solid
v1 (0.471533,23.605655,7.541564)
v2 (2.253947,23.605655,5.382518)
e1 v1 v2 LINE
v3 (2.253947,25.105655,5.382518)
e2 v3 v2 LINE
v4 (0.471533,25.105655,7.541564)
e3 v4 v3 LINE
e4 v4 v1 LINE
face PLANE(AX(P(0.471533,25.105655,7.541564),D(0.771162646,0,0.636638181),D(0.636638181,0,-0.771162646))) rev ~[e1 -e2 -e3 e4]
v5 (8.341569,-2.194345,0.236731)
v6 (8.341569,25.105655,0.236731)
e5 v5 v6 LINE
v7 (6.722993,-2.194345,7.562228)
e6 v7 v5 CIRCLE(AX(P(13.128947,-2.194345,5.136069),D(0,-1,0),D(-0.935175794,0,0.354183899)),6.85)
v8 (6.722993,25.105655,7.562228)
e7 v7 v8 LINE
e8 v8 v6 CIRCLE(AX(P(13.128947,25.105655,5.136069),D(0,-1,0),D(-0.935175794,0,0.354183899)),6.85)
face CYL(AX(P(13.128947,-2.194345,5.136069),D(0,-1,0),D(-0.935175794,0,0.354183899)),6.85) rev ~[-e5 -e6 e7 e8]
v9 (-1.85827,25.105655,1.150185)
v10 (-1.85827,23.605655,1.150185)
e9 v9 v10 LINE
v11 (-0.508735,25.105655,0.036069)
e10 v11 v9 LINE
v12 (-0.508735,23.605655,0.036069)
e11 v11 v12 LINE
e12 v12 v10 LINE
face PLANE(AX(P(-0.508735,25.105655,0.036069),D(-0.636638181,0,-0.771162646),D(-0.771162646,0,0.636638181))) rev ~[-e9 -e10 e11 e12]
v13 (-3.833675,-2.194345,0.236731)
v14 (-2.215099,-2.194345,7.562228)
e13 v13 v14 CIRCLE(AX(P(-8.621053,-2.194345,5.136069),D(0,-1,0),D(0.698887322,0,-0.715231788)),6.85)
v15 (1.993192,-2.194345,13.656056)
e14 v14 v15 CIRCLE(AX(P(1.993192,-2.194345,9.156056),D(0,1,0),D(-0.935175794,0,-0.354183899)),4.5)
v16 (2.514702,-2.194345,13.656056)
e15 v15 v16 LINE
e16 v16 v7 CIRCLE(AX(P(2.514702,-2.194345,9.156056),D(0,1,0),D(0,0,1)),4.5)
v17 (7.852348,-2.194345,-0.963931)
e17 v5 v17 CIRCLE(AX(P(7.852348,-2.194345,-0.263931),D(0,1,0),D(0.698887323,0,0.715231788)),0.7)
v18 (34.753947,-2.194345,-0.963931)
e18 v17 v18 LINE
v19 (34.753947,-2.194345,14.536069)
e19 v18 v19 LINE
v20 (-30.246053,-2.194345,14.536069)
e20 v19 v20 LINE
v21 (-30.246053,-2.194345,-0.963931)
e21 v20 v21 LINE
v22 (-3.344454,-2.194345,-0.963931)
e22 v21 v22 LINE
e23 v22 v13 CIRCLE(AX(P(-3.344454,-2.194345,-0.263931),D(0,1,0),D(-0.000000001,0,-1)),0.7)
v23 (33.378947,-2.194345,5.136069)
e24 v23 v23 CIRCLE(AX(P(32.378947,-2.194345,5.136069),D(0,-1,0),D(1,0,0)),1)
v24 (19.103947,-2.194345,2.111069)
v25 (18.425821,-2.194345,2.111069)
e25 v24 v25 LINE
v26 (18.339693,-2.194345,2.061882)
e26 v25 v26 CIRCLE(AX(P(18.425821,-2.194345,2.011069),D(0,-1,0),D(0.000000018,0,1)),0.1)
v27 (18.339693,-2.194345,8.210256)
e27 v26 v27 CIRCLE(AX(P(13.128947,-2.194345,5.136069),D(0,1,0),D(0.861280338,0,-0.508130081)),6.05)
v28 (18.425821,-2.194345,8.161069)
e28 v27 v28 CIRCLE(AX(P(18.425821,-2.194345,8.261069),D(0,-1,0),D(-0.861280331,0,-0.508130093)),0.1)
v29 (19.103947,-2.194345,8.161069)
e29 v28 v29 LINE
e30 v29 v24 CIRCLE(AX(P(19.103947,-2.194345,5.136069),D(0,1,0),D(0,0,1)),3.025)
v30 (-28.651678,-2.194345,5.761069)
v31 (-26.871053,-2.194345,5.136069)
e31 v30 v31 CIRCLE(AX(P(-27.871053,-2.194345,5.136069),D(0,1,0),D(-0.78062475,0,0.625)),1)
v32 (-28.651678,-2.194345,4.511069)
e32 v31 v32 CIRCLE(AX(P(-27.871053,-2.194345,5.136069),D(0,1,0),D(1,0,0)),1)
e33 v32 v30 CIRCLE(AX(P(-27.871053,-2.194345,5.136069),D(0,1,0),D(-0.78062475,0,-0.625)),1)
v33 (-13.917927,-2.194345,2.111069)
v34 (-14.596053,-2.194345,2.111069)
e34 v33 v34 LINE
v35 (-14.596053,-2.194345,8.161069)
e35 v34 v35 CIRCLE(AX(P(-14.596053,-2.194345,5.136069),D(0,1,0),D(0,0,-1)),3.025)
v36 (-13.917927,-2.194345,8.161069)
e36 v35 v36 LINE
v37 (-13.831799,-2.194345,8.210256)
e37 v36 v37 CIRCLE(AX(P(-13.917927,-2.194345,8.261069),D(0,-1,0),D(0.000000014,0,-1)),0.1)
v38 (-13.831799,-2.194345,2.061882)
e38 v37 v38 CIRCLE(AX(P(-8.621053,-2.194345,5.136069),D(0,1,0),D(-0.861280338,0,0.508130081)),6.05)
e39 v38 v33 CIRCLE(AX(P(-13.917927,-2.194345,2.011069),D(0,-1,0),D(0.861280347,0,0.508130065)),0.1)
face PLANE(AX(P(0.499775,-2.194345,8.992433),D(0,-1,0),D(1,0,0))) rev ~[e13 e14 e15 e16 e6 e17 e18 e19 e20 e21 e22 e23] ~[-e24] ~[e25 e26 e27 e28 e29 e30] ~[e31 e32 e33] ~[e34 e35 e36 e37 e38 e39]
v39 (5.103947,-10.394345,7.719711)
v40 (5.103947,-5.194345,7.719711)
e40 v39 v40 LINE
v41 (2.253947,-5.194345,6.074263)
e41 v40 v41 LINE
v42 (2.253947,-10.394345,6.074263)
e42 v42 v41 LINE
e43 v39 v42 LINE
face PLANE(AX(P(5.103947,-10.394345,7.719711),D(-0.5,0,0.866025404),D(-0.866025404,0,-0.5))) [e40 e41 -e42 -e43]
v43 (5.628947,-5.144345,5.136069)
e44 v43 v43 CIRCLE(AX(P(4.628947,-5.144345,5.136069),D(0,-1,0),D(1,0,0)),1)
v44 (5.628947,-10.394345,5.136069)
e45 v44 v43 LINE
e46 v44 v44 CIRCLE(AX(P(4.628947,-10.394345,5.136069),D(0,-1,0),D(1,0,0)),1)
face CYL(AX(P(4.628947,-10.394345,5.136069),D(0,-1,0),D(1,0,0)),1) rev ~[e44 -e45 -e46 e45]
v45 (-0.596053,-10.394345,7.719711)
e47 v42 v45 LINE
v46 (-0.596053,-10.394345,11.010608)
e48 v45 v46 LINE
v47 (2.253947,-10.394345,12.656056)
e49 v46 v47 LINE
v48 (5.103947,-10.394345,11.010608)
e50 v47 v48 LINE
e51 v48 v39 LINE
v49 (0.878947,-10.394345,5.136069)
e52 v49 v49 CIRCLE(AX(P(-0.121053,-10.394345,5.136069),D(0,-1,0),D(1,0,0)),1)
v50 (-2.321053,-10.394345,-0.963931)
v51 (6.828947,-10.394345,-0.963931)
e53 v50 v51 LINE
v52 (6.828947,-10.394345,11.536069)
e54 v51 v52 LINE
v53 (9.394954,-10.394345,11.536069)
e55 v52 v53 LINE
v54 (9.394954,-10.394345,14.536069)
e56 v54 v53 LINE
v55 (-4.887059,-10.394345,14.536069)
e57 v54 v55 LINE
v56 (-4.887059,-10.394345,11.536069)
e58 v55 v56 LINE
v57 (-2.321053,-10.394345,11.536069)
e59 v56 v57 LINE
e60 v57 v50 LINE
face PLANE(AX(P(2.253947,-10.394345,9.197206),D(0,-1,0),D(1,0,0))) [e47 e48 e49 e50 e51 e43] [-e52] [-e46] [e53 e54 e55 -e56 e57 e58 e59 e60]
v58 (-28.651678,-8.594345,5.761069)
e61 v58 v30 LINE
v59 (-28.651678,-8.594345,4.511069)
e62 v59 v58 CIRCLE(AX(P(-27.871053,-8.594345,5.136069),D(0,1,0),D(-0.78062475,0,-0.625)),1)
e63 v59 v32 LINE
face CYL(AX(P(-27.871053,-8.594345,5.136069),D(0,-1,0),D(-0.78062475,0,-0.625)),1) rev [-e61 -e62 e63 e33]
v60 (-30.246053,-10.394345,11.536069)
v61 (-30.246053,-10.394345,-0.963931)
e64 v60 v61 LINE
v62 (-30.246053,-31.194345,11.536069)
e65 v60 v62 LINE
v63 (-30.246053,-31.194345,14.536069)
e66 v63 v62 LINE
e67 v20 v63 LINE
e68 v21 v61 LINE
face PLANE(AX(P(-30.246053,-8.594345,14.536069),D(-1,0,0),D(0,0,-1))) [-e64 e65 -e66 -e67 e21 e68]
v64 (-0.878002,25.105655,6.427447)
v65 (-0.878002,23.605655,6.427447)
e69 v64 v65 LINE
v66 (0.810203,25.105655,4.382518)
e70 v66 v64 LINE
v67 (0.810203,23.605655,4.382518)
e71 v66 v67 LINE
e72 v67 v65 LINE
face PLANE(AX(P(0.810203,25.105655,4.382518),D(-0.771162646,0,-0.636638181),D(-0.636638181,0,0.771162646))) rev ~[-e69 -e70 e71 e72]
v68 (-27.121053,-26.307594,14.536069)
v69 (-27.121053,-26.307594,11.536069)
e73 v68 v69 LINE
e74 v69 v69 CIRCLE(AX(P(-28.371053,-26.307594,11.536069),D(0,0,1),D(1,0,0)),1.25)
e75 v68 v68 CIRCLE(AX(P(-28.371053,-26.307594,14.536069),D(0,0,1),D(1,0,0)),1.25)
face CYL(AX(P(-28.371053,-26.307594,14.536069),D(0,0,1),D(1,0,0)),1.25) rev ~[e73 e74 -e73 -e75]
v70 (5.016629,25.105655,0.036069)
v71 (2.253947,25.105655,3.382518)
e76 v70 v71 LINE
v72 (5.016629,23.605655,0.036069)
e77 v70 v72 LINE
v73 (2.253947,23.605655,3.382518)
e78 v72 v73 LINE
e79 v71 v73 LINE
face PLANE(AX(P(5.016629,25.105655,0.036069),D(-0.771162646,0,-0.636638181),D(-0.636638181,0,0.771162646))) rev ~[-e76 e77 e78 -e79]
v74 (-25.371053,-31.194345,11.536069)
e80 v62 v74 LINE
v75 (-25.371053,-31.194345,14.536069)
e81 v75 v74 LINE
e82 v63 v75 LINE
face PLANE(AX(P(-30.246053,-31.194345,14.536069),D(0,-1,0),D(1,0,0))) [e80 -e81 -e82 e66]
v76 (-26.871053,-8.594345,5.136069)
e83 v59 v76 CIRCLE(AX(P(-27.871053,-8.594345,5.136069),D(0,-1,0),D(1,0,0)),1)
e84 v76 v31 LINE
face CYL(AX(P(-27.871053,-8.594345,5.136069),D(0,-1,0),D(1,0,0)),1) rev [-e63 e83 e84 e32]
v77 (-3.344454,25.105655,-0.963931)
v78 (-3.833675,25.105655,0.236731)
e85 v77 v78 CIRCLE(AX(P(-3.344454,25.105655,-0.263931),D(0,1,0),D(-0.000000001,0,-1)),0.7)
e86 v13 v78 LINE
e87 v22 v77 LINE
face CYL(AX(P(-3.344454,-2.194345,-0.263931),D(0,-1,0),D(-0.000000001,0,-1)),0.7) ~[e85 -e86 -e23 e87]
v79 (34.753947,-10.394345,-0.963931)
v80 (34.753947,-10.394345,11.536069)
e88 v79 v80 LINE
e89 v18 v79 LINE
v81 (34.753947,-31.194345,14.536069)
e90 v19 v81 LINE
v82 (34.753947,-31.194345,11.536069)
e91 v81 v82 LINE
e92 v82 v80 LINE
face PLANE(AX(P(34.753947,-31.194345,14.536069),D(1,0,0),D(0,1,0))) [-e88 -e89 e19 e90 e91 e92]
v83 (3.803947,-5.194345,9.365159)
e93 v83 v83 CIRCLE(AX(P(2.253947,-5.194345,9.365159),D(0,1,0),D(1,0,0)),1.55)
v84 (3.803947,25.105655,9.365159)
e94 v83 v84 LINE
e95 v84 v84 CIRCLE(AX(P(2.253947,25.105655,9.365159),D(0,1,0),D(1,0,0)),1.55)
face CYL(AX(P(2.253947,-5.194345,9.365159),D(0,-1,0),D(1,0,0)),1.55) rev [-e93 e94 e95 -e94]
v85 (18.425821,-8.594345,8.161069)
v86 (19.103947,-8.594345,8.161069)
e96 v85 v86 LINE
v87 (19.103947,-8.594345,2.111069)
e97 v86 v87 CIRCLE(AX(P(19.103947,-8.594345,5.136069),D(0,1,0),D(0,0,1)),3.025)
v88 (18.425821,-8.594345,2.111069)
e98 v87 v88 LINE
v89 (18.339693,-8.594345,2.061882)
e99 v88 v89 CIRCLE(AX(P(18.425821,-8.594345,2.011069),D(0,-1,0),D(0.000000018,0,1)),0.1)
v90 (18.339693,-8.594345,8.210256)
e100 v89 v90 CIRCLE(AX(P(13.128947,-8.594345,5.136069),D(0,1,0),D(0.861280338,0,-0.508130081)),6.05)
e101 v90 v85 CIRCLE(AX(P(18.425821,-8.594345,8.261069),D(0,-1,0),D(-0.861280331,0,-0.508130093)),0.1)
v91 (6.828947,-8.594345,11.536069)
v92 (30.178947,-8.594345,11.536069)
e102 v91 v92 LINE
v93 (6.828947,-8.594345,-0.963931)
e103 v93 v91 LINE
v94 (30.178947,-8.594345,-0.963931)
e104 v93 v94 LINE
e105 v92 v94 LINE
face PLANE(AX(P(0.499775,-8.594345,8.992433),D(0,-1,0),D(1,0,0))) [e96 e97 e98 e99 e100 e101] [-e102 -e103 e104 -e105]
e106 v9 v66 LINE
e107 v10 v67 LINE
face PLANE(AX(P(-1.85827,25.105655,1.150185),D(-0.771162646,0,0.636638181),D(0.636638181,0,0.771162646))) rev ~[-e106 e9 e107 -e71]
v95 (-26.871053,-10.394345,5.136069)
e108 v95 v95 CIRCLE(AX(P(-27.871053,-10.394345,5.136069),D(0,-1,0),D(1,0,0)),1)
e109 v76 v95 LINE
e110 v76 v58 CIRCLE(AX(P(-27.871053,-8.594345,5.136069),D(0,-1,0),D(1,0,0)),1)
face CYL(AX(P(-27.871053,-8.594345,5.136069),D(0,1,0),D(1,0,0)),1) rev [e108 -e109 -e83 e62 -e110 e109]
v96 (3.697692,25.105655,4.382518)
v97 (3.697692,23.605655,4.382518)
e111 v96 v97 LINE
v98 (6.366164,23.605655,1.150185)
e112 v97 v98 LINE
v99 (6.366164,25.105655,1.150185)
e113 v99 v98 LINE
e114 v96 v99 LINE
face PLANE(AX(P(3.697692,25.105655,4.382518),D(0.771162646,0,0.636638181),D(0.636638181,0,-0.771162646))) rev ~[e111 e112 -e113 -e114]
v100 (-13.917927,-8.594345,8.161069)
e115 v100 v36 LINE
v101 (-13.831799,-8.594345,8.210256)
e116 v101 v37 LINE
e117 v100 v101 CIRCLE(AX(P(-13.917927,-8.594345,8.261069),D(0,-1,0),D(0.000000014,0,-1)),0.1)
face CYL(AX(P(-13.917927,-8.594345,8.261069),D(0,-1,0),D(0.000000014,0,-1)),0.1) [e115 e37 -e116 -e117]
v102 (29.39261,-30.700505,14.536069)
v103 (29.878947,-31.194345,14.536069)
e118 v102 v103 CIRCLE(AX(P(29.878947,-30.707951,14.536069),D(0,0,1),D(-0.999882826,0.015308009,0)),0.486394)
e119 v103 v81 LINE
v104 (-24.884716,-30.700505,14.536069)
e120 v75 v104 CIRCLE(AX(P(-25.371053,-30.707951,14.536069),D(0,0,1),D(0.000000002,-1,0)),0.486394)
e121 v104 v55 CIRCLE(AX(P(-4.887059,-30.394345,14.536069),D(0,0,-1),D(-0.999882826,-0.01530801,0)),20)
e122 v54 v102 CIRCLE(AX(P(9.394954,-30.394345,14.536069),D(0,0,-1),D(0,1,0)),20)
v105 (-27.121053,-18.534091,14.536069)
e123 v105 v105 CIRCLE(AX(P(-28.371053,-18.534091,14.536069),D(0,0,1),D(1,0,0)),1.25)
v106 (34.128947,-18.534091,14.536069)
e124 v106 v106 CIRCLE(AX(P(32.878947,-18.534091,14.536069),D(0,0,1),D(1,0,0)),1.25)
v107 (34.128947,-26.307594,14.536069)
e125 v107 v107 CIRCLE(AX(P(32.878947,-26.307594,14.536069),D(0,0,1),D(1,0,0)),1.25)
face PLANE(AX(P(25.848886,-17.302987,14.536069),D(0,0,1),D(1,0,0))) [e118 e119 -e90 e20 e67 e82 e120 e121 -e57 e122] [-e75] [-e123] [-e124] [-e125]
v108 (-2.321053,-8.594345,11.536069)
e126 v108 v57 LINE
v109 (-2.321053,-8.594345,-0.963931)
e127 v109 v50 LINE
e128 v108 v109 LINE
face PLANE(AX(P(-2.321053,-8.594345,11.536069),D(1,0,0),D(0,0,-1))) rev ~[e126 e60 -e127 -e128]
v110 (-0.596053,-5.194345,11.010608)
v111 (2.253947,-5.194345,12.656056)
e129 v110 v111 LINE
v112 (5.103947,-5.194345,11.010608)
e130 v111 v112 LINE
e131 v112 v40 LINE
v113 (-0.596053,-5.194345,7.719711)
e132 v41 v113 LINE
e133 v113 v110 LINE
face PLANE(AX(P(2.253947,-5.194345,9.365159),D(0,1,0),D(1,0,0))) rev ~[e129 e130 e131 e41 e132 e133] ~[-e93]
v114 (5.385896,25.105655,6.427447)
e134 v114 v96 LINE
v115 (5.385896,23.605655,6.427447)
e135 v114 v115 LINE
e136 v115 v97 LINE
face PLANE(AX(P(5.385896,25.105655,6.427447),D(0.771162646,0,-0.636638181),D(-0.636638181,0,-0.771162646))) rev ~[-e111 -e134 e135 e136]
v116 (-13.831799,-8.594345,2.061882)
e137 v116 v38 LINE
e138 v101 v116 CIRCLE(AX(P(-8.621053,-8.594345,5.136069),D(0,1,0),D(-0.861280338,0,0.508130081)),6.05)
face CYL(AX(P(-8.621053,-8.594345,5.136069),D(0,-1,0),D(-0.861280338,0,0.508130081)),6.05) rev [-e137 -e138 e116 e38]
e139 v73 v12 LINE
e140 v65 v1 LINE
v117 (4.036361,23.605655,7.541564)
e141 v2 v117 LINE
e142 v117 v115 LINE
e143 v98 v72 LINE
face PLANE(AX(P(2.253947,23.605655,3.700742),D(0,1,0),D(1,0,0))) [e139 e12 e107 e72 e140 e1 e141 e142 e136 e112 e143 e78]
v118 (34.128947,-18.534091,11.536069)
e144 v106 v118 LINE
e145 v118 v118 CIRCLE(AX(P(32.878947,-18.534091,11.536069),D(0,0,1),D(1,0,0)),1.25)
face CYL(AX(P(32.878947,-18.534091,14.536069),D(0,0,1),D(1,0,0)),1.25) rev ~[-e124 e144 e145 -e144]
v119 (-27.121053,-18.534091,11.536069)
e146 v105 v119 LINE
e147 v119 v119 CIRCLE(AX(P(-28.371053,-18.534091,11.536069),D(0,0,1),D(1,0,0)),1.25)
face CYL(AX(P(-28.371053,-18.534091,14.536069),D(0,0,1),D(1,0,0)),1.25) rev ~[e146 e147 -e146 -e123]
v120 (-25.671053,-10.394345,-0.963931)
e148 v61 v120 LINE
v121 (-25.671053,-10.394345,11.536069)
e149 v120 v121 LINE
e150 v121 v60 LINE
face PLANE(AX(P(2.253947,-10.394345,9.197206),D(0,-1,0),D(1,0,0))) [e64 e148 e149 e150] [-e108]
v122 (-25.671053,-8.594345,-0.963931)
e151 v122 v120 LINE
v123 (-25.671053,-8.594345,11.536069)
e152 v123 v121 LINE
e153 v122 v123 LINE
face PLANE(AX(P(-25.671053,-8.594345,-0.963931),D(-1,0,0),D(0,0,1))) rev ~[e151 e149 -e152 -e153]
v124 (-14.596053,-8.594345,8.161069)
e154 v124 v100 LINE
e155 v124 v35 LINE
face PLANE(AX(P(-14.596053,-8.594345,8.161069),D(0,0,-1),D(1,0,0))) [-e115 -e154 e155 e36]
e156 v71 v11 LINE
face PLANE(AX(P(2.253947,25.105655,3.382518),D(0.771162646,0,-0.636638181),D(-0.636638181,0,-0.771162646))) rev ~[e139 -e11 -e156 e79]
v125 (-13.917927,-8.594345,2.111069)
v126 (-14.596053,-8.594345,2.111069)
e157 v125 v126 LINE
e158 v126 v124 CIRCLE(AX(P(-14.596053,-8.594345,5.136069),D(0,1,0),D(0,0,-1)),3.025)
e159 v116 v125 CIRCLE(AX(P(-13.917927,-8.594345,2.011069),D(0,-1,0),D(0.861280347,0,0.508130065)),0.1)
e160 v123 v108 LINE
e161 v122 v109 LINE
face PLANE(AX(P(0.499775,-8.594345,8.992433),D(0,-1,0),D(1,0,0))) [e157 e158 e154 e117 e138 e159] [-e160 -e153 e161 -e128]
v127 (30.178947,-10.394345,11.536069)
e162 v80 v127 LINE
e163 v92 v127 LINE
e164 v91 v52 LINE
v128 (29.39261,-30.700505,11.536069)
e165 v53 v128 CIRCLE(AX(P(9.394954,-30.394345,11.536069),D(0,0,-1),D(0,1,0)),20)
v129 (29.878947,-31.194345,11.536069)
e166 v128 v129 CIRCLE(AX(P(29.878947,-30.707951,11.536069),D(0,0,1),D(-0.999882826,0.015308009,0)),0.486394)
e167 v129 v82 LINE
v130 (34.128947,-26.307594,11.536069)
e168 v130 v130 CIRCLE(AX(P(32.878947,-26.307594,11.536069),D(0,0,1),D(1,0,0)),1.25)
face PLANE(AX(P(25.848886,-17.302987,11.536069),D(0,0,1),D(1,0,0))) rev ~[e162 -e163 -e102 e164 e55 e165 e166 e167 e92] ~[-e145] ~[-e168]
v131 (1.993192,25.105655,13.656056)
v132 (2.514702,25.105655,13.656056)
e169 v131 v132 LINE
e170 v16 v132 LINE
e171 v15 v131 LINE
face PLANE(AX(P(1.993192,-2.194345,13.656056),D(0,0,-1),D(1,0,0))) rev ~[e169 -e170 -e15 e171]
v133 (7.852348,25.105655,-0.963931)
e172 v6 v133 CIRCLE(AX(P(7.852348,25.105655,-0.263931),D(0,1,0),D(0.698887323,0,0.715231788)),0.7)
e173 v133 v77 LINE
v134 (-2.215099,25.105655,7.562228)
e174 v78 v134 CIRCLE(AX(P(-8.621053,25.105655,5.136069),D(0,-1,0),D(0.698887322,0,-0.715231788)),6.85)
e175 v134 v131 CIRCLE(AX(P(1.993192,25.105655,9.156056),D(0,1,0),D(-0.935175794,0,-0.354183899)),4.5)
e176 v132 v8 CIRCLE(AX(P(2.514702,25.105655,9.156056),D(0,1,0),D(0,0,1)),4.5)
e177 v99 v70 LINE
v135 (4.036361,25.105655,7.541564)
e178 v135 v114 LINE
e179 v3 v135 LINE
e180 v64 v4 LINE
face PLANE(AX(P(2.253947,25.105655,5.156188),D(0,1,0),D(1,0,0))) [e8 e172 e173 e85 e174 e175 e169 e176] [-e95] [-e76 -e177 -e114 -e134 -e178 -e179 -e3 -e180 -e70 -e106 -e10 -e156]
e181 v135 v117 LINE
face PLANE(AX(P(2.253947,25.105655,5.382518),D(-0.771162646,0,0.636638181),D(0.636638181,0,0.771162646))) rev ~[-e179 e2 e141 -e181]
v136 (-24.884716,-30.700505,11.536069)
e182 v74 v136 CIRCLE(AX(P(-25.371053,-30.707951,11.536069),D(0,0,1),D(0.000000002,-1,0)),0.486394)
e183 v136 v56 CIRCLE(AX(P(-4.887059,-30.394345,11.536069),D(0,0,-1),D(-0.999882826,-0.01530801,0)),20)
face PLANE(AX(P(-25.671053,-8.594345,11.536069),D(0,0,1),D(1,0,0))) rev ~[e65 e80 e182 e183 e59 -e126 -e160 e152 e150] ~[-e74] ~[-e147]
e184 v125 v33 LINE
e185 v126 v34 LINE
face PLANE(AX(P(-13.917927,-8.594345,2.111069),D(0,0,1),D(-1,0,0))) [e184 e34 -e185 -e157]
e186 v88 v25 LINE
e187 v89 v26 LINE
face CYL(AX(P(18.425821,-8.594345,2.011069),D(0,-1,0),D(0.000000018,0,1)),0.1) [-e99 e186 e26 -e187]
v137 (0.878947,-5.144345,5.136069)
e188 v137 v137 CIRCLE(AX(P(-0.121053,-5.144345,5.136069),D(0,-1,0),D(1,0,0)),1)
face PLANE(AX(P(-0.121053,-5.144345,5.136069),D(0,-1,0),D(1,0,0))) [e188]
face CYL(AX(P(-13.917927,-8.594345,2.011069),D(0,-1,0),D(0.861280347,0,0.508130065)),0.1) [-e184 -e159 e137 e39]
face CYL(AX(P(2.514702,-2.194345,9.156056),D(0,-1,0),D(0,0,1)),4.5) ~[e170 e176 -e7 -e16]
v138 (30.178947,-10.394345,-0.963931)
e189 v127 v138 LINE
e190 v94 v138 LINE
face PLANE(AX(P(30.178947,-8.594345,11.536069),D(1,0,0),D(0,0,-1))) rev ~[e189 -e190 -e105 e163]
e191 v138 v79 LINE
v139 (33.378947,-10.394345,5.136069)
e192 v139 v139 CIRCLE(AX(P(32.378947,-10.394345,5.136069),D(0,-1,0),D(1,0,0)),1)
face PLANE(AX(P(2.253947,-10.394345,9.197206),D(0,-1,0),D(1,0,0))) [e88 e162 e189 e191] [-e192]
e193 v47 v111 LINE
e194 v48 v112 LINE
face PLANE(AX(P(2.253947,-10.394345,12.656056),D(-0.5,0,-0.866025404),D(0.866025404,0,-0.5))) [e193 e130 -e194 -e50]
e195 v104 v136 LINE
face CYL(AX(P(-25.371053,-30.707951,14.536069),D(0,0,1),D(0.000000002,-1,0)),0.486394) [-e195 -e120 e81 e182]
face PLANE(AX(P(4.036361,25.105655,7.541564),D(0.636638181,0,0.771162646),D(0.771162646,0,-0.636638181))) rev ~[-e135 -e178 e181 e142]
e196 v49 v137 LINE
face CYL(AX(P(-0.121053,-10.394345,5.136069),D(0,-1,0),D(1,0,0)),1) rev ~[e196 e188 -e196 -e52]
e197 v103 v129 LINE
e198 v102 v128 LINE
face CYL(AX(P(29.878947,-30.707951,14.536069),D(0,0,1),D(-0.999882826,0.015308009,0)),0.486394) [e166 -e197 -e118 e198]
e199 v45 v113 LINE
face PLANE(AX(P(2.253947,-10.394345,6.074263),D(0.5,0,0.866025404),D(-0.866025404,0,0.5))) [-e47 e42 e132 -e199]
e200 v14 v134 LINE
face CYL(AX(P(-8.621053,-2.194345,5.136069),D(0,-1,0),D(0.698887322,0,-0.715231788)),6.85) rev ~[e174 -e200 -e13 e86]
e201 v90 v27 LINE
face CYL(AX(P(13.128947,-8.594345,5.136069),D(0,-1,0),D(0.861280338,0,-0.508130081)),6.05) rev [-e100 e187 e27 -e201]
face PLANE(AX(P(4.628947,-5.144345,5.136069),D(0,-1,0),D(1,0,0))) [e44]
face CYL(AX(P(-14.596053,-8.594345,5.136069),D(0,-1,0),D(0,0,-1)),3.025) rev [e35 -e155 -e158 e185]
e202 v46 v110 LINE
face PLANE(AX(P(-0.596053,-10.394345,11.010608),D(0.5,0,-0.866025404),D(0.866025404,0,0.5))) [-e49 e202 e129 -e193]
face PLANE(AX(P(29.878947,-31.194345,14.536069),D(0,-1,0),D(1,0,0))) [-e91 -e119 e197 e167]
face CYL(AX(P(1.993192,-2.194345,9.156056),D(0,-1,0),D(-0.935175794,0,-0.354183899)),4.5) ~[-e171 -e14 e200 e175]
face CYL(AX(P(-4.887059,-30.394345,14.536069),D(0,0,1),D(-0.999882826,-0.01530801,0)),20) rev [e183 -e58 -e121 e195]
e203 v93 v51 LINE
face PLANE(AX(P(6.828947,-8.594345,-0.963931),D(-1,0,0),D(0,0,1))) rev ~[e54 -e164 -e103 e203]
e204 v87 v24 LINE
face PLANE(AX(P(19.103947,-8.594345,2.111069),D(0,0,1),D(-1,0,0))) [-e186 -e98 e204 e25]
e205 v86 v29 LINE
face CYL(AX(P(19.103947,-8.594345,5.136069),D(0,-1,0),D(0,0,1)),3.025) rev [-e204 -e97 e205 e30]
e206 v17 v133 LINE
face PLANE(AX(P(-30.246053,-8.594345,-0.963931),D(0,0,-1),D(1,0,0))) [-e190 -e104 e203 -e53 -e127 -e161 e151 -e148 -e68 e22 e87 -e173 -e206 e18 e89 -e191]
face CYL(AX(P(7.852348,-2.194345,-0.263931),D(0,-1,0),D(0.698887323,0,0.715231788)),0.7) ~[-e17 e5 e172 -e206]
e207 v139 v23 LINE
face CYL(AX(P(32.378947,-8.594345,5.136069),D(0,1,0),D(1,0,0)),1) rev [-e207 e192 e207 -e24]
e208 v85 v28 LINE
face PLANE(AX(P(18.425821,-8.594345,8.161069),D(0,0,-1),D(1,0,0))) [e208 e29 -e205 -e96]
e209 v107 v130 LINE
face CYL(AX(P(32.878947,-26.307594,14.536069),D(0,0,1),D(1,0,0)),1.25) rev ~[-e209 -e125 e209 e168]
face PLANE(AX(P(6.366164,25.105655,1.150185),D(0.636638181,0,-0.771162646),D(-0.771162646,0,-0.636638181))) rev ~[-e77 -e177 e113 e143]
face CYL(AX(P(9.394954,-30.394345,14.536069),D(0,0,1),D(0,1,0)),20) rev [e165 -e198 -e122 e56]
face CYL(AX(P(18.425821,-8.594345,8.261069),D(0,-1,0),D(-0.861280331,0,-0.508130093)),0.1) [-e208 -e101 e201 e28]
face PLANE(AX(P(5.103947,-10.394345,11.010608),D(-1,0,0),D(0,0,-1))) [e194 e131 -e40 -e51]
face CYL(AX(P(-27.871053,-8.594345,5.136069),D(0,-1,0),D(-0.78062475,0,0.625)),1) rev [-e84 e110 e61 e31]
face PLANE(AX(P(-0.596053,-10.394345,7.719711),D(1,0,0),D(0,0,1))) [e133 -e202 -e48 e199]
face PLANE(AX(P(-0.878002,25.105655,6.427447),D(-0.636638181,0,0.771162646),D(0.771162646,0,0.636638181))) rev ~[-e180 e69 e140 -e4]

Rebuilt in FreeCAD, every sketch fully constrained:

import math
import FreeCAD as App
import Part
import Sketcher
from FreeCAD import Vector
Q = App.Units.Quantity

doc = App.newDocument("Part")
body = doc.addObject("PartDesign::Body", "Body")

sketch1 = body.newObject("Sketcher::SketchObject", "Sketch")
sketch1.AttachmentSupport = (doc.getObject("XZ_Plane"), [""])
sketch1.MapMode = "FlatFace"
sketch1.AttachmentOffset = App.Placement(Vector(0, 0, 8.594345), App.Rotation())
sketch1.addGeometry([
    Part.LineSegment(Vector(-30.2, 14.5, 0), Vector(-30.2, -1, 0)),
    Part.LineSegment(Vector(-30.2, -1, 0), Vector(-25.7, -1, 0)),
    Part.LineSegment(Vector(-25.7, -1, 0), Vector(-25.7, 11.5, 0)),
    Part.LineSegment(Vector(-25.7, 11.5, 0), Vector(-2.3, 11.5, 0)),
    Part.LineSegment(Vector(-2.3, 11.5, 0), Vector(-2.3, -1, 0)),
    Part.LineSegment(Vector(-2.3, -1, 0), Vector(6.8, -1, 0)),
    Part.LineSegment(Vector(6.8, -1, 0), Vector(6.8, 11.5, 0)),
    Part.LineSegment(Vector(6.8, 11.5, 0), Vector(30.2, 11.5, 0)),
    Part.LineSegment(Vector(30.2, 11.5, 0), Vector(30.2, -1, 0)),
    Part.LineSegment(Vector(30.2, -1, 0), Vector(34.8, -1, 0)),
    Part.LineSegment(Vector(34.8, -1, 0), Vector(34.8, 14.5, 0)),
    Part.LineSegment(Vector(34.8, 14.5, 0), Vector(-30.2, 14.5, 0)),
    Part.Circle(Vector(-27.9, 5.1, 0), Vector(0, 0, 1), 1),
    Part.Circle(Vector(32.4, 5.1, 0), Vector(0, 0, 1), 1),
], False)
sketch1.addConstraint([
    Sketcher.Constraint("Coincident", 0, 2, 1, 1),
    Sketcher.Constraint("Coincident", 1, 2, 2, 1),
    Sketcher.Constraint("Coincident", 2, 2, 3, 1),
    Sketcher.Constraint("Coincident", 3, 2, 4, 1),
    Sketcher.Constraint("Coincident", 4, 2, 5, 1),
    Sketcher.Constraint("Coincident", 5, 2, 6, 1),
    Sketcher.Constraint("Coincident", 6, 2, 7, 1),
    Sketcher.Constraint("Coincident", 7, 2, 8, 1),
    Sketcher.Constraint("Coincident", 8, 2, 9, 1),
    Sketcher.Constraint("Coincident", 9, 2, 10, 1),
    Sketcher.Constraint("Coincident", 10, 2, 11, 1),
    Sketcher.Constraint("Coincident", 11, 2, 0, 1),
    Sketcher.Constraint("Vertical", 0),
    Sketcher.Constraint("Horizontal", 1),
    Sketcher.Constraint("Vertical", 2),
    Sketcher.Constraint("Horizontal", 3),
    Sketcher.Constraint("Vertical", 4),
    Sketcher.Constraint("Horizontal", 5),
    Sketcher.Constraint("Vertical", 6),
    Sketcher.Constraint("Horizontal", 7),
    Sketcher.Constraint("Vertical", 8),
    Sketcher.Constraint("Horizontal", 9),
    Sketcher.Constraint("Vertical", 10),
    Sketcher.Constraint("Horizontal", 11),
    Sketcher.Constraint("Equal", 12, 13),
    Sketcher.Constraint("Horizontal", 12, 3, 13, 3),
    Sketcher.Constraint("Horizontal", 1, 2, 4, 2),
    Sketcher.Constraint("Horizontal", 3, 2, 6, 2),
    Sketcher.Constraint("Horizontal", 5, 2, 8, 2),
    Sketcher.Constraint("Equal", 3, 7),
    Sketcher.Constraint("Equal", 1, 9),
    Sketcher.Constraint("Diameter", 12, Q("2 mm")),
    Sketcher.Constraint("DistanceX", 11, 2, 11, 1, Q("65 mm")),
    Sketcher.Constraint("DistanceY", 0, 2, 0, 1, Q("15.5 mm")),
    Sketcher.Constraint("DistanceY", 2, 1, 2, 2, Q("12.5 mm")),
    Sketcher.Constraint("DistanceX", 3, 1, 3, 2, Q("23.35 mm")),
    Sketcher.Constraint("DistanceX", 5, 1, 5, 2, Q("9.15 mm")),
    Sketcher.Constraint("DistanceY", 0, 2, 12, 3, Q("6.1 mm")),
    Sketcher.Constraint("DistanceX", 12, 3, 1, 2, Q("2.2 mm")),
    Sketcher.Constraint("DistanceX", 3, 2, 13, 3, Q("34.7 mm")),
    Sketcher.Constraint("DistanceY", -1, 1, 12, 3, Q("5.136069 mm")),
    Sketcher.Constraint("DistanceX", 12, 3, -1, 1, Q("27.871053 mm")),
])
pad1 = body.newObject("PartDesign::Pad", "Pad")
pad1.Profile = sketch1
pad1.Length = 1.8

sketch2 = body.newObject("Sketcher::SketchObject", "Sketch001")
sketch2.AttachmentSupport = (doc.getObject("XZ_Plane"), [""])
sketch2.MapMode = "FlatFace"
sketch2.AttachmentOffset = App.Placement(Vector(0, 0, 8.594345), App.Rotation())
sketch2.addGeometry([
    Part.LineSegment(Vector(-30.25, 14.54, 0), Vector(-30.25, -0.96, 0)),
    Part.LineSegment(Vector(-30.25, -0.96, 0), Vector(34.75, -0.96, 0)),
    Part.LineSegment(Vector(34.75, -0.96, 0), Vector(34.75, 14.54, 0)),
    Part.LineSegment(Vector(34.75, 14.54, 0), Vector(-30.25, 14.54, 0)),
    Part.ArcOfCircle(Part.Circle(Vector(-27.87, 5.14, 0), Vector(0, 0, 1), 1), math.radians(141), math.radians(219)),
    Part.ArcOfCircle(Part.Circle(Vector(-27.87, 5.14, 0), Vector(0, 0, 1), 1), math.radians(0), math.radians(141)),
    Part.ArcOfCircle(Part.Circle(Vector(-27.87, 5.14, 0), Vector(0, 0, 1), 1), math.radians(-141), math.radians(0)),
    Part.ArcOfCircle(Part.Circle(Vector(-8.62, 5.14, 0), Vector(0, 0, 1), 6.05), math.radians(-149), math.radians(149)),
    Part.ArcOfCircle(Part.Circle(Vector(-13.92, 2.01, 0), Vector(0, 0, 1), 0.1), math.radians(31), math.radians(90)),
    Part.LineSegment(Vector(-13.92, 2.11, 0), Vector(-14.6, 2.11, 0)),
    Part.ArcOfCircle(Part.Circle(Vector(-14.6, 5.14, 0), Vector(0, 0, 1), 3.02), math.radians(90), math.radians(270)),
    Part.LineSegment(Vector(-14.6, 8.16, 0), Vector(-13.92, 8.16, 0)),
    Part.ArcOfCircle(Part.Circle(Vector(-13.92, 8.26, 0), Vector(0, 0, 1), 0.1), math.radians(-90), math.radians(-31)),
    Part.ArcOfCircle(Part.Circle(Vector(19.1, 5.14, 0), Vector(0, 0, 1), 3.02), math.radians(-90), math.radians(90)),
    Part.LineSegment(Vector(19.1, 2.11, 0), Vector(18.43, 2.11, 0)),
    Part.ArcOfCircle(Part.Circle(Vector(18.43, 2.01, 0), Vector(0, 0, 1), 0.1), math.radians(90), math.radians(149)),
    Part.ArcOfCircle(Part.Circle(Vector(13.13, 5.14, 0), Vector(0, 0, 1), 6.05), math.radians(31), math.radians(329)),
    Part.ArcOfCircle(Part.Circle(Vector(18.43, 8.26, 0), Vector(0, 0, 1), 0.1), math.radians(-149), math.radians(-90)),
    Part.LineSegment(Vector(18.43, 8.16, 0), Vector(19.1, 8.16, 0)),
    Part.Circle(Vector(32.38, 5.14, 0), Vector(0, 0, 1), 1),
], False)
sketch2.addConstraint([
    Sketcher.Constraint("Coincident", 0, 2, 1, 1),
    Sketcher.Constraint("Coincident", 1, 2, 2, 1),
    Sketcher.Constraint("Coincident", 2, 2, 3, 1),
    Sketcher.Constraint("Coincident", 3, 2, 0, 1),
    Sketcher.Constraint("Tangent", 4, 1, 5, 2),
    Sketcher.Constraint("Tangent", 5, 1, 6, 2),
    Sketcher.Constraint("Tangent", 6, 1, 4, 2),
    Sketcher.Constraint("Tangent", 7, 1, 8, 1),
    Sketcher.Constraint("Tangent", 8, 2, 9, 1),
    Sketcher.Constraint("Tangent", 9, 2, 10, 2),
    Sketcher.Constraint("Tangent", 10, 1, 11, 1),
    Sketcher.Constraint("Tangent", 11, 2, 12, 1),
    Sketcher.Constraint("Tangent", 12, 2, 7, 2),
    Sketcher.Constraint("Tangent", 13, 1, 14, 1),
    Sketcher.Constraint("Tangent", 14, 2, 15, 1),
    Sketcher.Constraint("Tangent", 15, 2, 16, 2),
    Sketcher.Constraint("Tangent", 16, 1, 17, 1),
    Sketcher.Constraint("Tangent", 17, 2, 18, 1),
    Sketcher.Constraint("Tangent", 18, 2, 13, 2),
    Sketcher.Constraint("Vertical", 0),
    Sketcher.Constraint("Horizontal", 1),
    Sketcher.Constraint("Vertical", 2),
    Sketcher.Constraint("Horizontal", 3),
    Sketcher.Constraint("Horizontal", 9),
    Sketcher.Constraint("Horizontal", 11),
    Sketcher.Constraint("Horizontal", 14),
    Sketcher.Constraint("Horizontal", 18),
    Sketcher.Constraint("Equal", 8, 12),
    Sketcher.Constraint("Equal", 10, 13),
    Sketcher.Constraint("Equal", 12, 15),
    Sketcher.Constraint("Equal", 7, 16),
    Sketcher.Constraint("Equal", 15, 17),
    Sketcher.Constraint("Equal", 6, 19),
    Sketcher.Constraint("Horizontal", 6, 3, 7, 3),
    Sketcher.Constraint("Horizontal", 7, 3, 10, 3),
    Sketcher.Constraint("Horizontal", 10, 3, 13, 3),
    Sketcher.Constraint("Horizontal", 13, 3, 16, 3),
    Sketcher.Constraint("Horizontal", 16, 3, 19, 3),
    Sketcher.Constraint("Horizontal", 19, 3, 5, 1),
    Sketcher.Constraint("Vertical", 4, 1, 6, 1),
    Sketcher.Constraint("Equal", 11, 14),
    Sketcher.Constraint("Diameter", 19, Q("2 mm")),
    Sketcher.Constraint("Radius", 8, Q("0.1 mm")),
    Sketcher.Constraint("DistanceX", 1, 1, 1, 2, Q("65 mm")),
    Sketcher.Constraint("Radius", 7, Q("6.05 mm")),
    Sketcher.Constraint("DistanceY", 0, 2, 0, 1, Q("15.5 mm")),
    Sketcher.Constraint("Radius", 10, Q("3.025 mm")),
    Sketcher.Constraint("DistanceX", 7, 3, 19, 3, Q("41 mm")),
    Sketcher.Constraint("DistanceX", 10, 3, 13, 3, Q("33.7 mm")),
    Sketcher.Constraint("DistanceY", 0, 2, 5, 3, Q("6.1 mm")),
    Sketcher.Constraint("DistanceX", 4, 3, 7, 3, Q("19.25 mm")),
    Sketcher.Constraint("DistanceX", 7, 3, 16, 3, Q("21.75 mm")),
    Sketcher.Constraint("DistanceX", 0, 2, 10, 3, Q("15.65 mm")),
    Sketcher.Constraint("DistanceY", 6, 1, 4, 1, Q("1.25 mm")),
    Sketcher.Constraint("DistanceX", 7, 1, -1, 1, Q("13.831799 mm")),
    Sketcher.Constraint("DistanceY", -1, 1, 4, 3, Q("5.136069 mm")),
])
pad2 = body.newObject("PartDesign::Pad", "Pad001")
pad2.Profile = sketch2
pad2.Length = 6.4
pad2.Reversed = True

sketch3 = body.newObject("Sketcher::SketchObject", "Sketch002")
sketch3.AttachmentSupport = (doc.getObject("XZ_Plane"), [""])
sketch3.MapMode = "FlatFace"
sketch3.AttachmentOffset = App.Placement(Vector(0, 0, 10.394345), App.Rotation())
sketch3.addGeometry([
    Part.Circle(Vector(4.6, 5.1, 0), Vector(0, 0, 1), 1),
    Part.Circle(Vector(-0.1, 5.1, 0), Vector(0, 0, 1), 1),
], False)
sketch3.addConstraint([
    Sketcher.Constraint("Equal", 0, 1),
    Sketcher.Constraint("Horizontal", 0, 3, 1, 3),
    Sketcher.Constraint("Diameter", 0, Q("2 mm")),
    Sketcher.Constraint("DistanceX", 1, 3, 0, 3, Q("4.75 mm")),
    Sketcher.Constraint("DistanceY", -1, 1, 0, 3, Q("5.136069 mm")),
    Sketcher.Constraint("DistanceX", -1, 1, 0, 3, Q("4.628947 mm")),
])
pocket1 = body.newObject("PartDesign::Pocket", "Pocket")
pocket1.Profile = sketch3
pocket1.Length = 5.25

sketch4 = body.newObject("Sketcher::SketchObject", "Sketch003")
sketch4.AttachmentSupport = (doc.getObject("XY_Plane"), [""])
sketch4.MapMode = "FlatFace"
sketch4.AttachmentOffset = App.Placement(Vector(0, 0, 14.536069), App.Rotation())
sketch4.addGeometry([
    Part.LineSegment(Vector(34.75, -10.39, 0), Vector(9.39, -10.39, 0)),
    Part.ArcOfCircle(Part.Circle(Vector(9.39, -30.39, 0), Vector(0, 0, 1), 20), math.radians(-1), math.radians(90)),
    Part.ArcOfCircle(Part.Circle(Vector(29.88, -30.71, 0), Vector(0, 0, 1), 0.49), math.radians(179), math.radians(270)),
    Part.LineSegment(Vector(29.88, -31.19, 0), Vector(34.75, -31.19, 0)),
    Part.LineSegment(Vector(34.75, -31.19, 0), Vector(34.75, -10.39, 0)),
    Part.Circle(Vector(32.88, -26.31, 0), Vector(0, 0, 1), 1.25),
    Part.Circle(Vector(32.88, -18.53, 0), Vector(0, 0, 1), 1.25),
    Part.LineSegment(Vector(-4.89, -10.39, 0), Vector(-30.25, -10.39, 0)),
    Part.LineSegment(Vector(-30.25, -10.39, 0), Vector(-30.25, -31.19, 0)),
    Part.LineSegment(Vector(-30.25, -31.19, 0), Vector(-25.37, -31.19, 0)),
    Part.ArcOfCircle(Part.Circle(Vector(-25.37, -30.71, 0), Vector(0, 0, 1), 0.49), math.radians(-90), math.radians(1)),
    Part.ArcOfCircle(Part.Circle(Vector(-4.89, -30.39, 0), Vector(0, 0, 1), 20), math.radians(90), math.radians(181)),
    Part.Circle(Vector(-28.37, -26.31, 0), Vector(0, 0, 1), 1.25),
    Part.Circle(Vector(-28.37, -18.53, 0), Vector(0, 0, 1), 1.25),
], False)
sketch4.addConstraint([
    Sketcher.Constraint("Tangent", 0, 2, 1, 2),
    Sketcher.Constraint("Tangent", 1, 1, 2, 1),
    Sketcher.Constraint("Tangent", 2, 2, 3, 1),
    Sketcher.Constraint("Coincident", 3, 2, 4, 1),
    Sketcher.Constraint("Coincident", 4, 2, 0, 1),
    Sketcher.Constraint("Coincident", 7, 2, 8, 1),
    Sketcher.Constraint("Coincident", 8, 2, 9, 1),
    Sketcher.Constraint("Tangent", 9, 2, 10, 1),
    Sketcher.Constraint("Tangent", 10, 2, 11, 2),
    Sketcher.Constraint("Tangent", 11, 1, 7, 1),
    Sketcher.Constraint("Horizontal", 0),
    Sketcher.Constraint("Horizontal", 3),
    Sketcher.Constraint("Vertical", 4),
    Sketcher.Constraint("Horizontal", 7),
    Sketcher.Constraint("Vertical", 8),
    Sketcher.Constraint("Horizontal", 9),
    Sketcher.Constraint("Equal", 5, 6),
    Sketcher.Constraint("Equal", 2, 10),
    Sketcher.Constraint("Equal", 1, 11),
    Sketcher.Constraint("Equal", 6, 12),
    Sketcher.Constraint("Equal", 12, 13),
    Sketcher.Constraint("Horizontal", 2, 3, 10, 3),
    Sketcher.Constraint("Horizontal", 1, 3, 11, 3),
    Sketcher.Constraint("Horizontal", 5, 3, 12, 3),
    Sketcher.Constraint("Horizontal", 6, 3, 13, 3),
    Sketcher.Constraint("Vertical", 5, 3, 6, 3),
    Sketcher.Constraint("Vertical", 12, 3, 13, 3),
    Sketcher.Constraint("Equal", 0, 7),
    Sketcher.Constraint("Radius", 1, Q("20 mm")),
    Sketcher.Constraint("Diameter", 5, Q("2.5 mm")),
    Sketcher.Constraint("DistanceY", 4, 1, 4, 2, Q("20.8 mm")),
    Sketcher.Constraint("DistanceX", 2, 3, 5, 3, Q("3 mm")),
    Sketcher.Constraint("DistanceX", 12, 3, 10, 3, Q("3 mm")),
    Sketcher.Constraint("DistanceX", 3, 1, 3, 2, Q("4.875 mm")),
    Sketcher.Constraint("DistanceX", 10, 3, 2, 3, Q("55.25 mm")),
    Sketcher.Constraint("Radius", 2, Q("0.486394 mm")),
    Sketcher.Constraint("DistanceY", 2, 3, -1, 1, Q("30.707951 mm")),
    Sketcher.Constraint("DistanceY", 6, 3, -1, 1, Q("18.534091 mm")),
    Sketcher.Constraint("DistanceX", 11, 3, -1, 1, Q("4.887059 mm")),
    Sketcher.Constraint("DistanceY", 1, 3, 5, 3, Q("4.086751 mm")),
])
pad3 = body.newObject("PartDesign::Pad", "Pad002")
pad3.Profile = sketch4
pad3.Length = 3
pad3.Reversed = True

sketch5 = body.newObject("Sketcher::SketchObject", "Sketch004")
sketch5.AttachmentSupport = (doc.getObject("XZ_Plane"), [""])
sketch5.MapMode = "FlatFace"
sketch5.AttachmentOffset = App.Placement(Vector(0, 0, 10.394345), App.Rotation())
sketch5.addGeometry([
    Part.LineSegment(Vector(5.1, 11, 0), Vector(5.1, 7.7, 0)),
    Part.LineSegment(Vector(5.1, 7.7, 0), Vector(2.3, 6.1, 0)),
    Part.LineSegment(Vector(2.3, 6.1, 0), Vector(-0.6, 7.7, 0)),
    Part.LineSegment(Vector(-0.6, 7.7, 0), Vector(-0.6, 11, 0)),
    Part.LineSegment(Vector(-0.6, 11, 0), Vector(2.3, 12.7, 0)),
    Part.LineSegment(Vector(2.3, 12.7, 0), Vector(5.1, 11, 0)),
], False)
sketch5.addConstraint([
    Sketcher.Constraint("Coincident", 0, 2, 1, 1),
    Sketcher.Constraint("Coincident", 1, 2, 2, 1),
    Sketcher.Constraint("Coincident", 2, 2, 3, 1),
    Sketcher.Constraint("Coincident", 3, 2, 4, 1),
    Sketcher.Constraint("Coincident", 4, 2, 5, 1),
    Sketcher.Constraint("Coincident", 5, 2, 0, 1),
    Sketcher.Constraint("Vertical", 0),
    Sketcher.Constraint("Vertical", 3),
    Sketcher.Constraint("Parallel", 1, 4),
    Sketcher.Constraint("Parallel", 2, 5),
    Sketcher.Constraint("Horizontal", 0, 2, 2, 2),
    Sketcher.Constraint("Horizontal", 3, 2, 5, 2),
    Sketcher.Constraint("Vertical", 1, 2, 4, 2),
    Sketcher.Constraint("Angle", 1, Q("-150 deg")),
    Sketcher.Constraint("DistanceX", 2, 2, 0, 2, Q("5.7 mm")),
    Sketcher.Constraint("DistanceY", 0, 2, 0, 1, Q("3.290897 mm")),
    Sketcher.Constraint("DistanceY", -1, 1, 0, 2, Q("7.719711 mm")),
    Sketcher.Constraint("DistanceX", -1, 1, 0, 2, Q("5.103947 mm")),
])
pocket2 = body.newObject("PartDesign::Pocket", "Pocket001")
pocket2.Profile = sketch5
pocket2.Length = 5.2

sketch6 = body.newObject("Sketcher::SketchObject", "Sketch005")
sketch6.AttachmentSupport = (doc.getObject("XZ_Plane"), [""])
sketch6.MapMode = "FlatFace"
sketch6.AttachmentOffset = App.Placement(Vector(0, 0, 2.194345), App.Rotation())
sketch6.addGeometry([
    Part.LineSegment(Vector(2, 13.7, 0), Vector(2.5, 13.7, 0)),
    Part.ArcOfCircle(Part.Circle(Vector(2.5, 9.2, 0), Vector(0, 0, 1), 4.5), math.radians(-21), math.radians(90)),
    Part.ArcOfCircle(Part.Circle(Vector(13.1, 5.1, 0), Vector(0, 0, 1), 6.9), math.radians(159), math.radians(226)),
    Part.ArcOfCircle(Part.Circle(Vector(7.9, -0.3, 0), Vector(0, 0, 1), 0.7), math.radians(-90), math.radians(46)),
    Part.LineSegment(Vector(7.9, -1, 0), Vector(-3.3, -1, 0)),
    Part.ArcOfCircle(Part.Circle(Vector(-3.3, -0.3, 0), Vector(0, 0, 1), 0.7), math.radians(134), math.radians(270)),
    Part.ArcOfCircle(Part.Circle(Vector(-8.6, 5.1, 0), Vector(0, 0, 1), 6.8), math.radians(-46), math.radians(21)),
    Part.ArcOfCircle(Part.Circle(Vector(2, 9.2, 0), Vector(0, 0, 1), 4.5), math.radians(90), math.radians(201)),
], False)
sketch6.addConstraint([
    Sketcher.Constraint("Tangent", 0, 2, 1, 2),
    Sketcher.Constraint("Tangent", 1, 1, 2, 1),
    Sketcher.Constraint("Tangent", 2, 2, 3, 2),
    Sketcher.Constraint("Tangent", 3, 1, 4, 1),
    Sketcher.Constraint("Tangent", 4, 2, 5, 2),
    Sketcher.Constraint("Tangent", 5, 1, 6, 1),
    Sketcher.Constraint("Tangent", 6, 2, 7, 2),
    Sketcher.Constraint("Tangent", 7, 1, 0, 1),
    Sketcher.Constraint("Horizontal", 0),
    Sketcher.Constraint("Horizontal", 4),
    Sketcher.Constraint("Equal", 3, 5),
    Sketcher.Constraint("Equal", 2, 6),
    Sketcher.Constraint("Equal", 1, 7),
    Sketcher.Constraint("Horizontal", 2, 3, 6, 3),
    Sketcher.Constraint("Radius", 1, Q("4.5 mm")),
    Sketcher.Constraint("Radius", 3, Q("0.7 mm")),
    Sketcher.Constraint("Radius", 2, Q("6.85 mm")),
    Sketcher.Constraint("DistanceY", 3, 3, 2, 3, Q("5.4 mm")),
    Sketcher.Constraint("DistanceX", 6, 3, 2, 3, Q("21.75 mm")),
    Sketcher.Constraint("DistanceX", 0, 1, 0, 2, Q("0.521509 mm")),
    Sketcher.Constraint("DistanceX", -1, 1, 1, 3, Q("2.514702 mm")),
    Sketcher.Constraint("DistanceY", -1, 1, 2, 3, Q("5.136069 mm")),
])
pad4 = body.newObject("PartDesign::Pad", "Pad003")
pad4.Profile = sketch6
pad4.Length = 27.3
pad4.Reversed = True

sketch7 = body.newObject("Sketcher::SketchObject", "Sketch006")
sketch7.AttachmentSupport = (doc.getObject("XZ_Plane"), [""])
sketch7.MapMode = "FlatFace"
sketch7.AttachmentOffset = App.Placement(Vector(0, 0, 5.194345), App.Rotation())
sketch7.addGeometry(Part.Circle(Vector(2.3, 9.4, 0), Vector(0, 0, 1), 1.6), False)
sketch7.addConstraint([
    Sketcher.Constraint("Diameter", 0, Q("3.1 mm")),
    Sketcher.Constraint("DistanceY", -1, 1, 0, 3, Q("9.365159 mm")),
    Sketcher.Constraint("DistanceX", -1, 1, 0, 3, Q("2.253947 mm")),
])
pocket3 = body.newObject("PartDesign::Pocket", "Pocket002")
pocket3.Profile = sketch7
pocket3.Length = 30.3

sketch8 = body.newObject("Sketcher::SketchObject", "Sketch007")
sketch8.AttachmentSupport = (doc.getObject("XZ_Plane"), [""])
sketch8.MapMode = "FlatFace"
sketch8.AttachmentOffset = App.Placement(Vector(0, 0, -25.105655), App.Rotation())
sketch8.addGeometry([
    Part.LineSegment(Vector(5.4, 6.4, 0), Vector(3.7, 4.4, 0)),
    Part.LineSegment(Vector(3.7, 4.4, 0), Vector(6.4, 1.2, 0)),
    Part.LineSegment(Vector(6.4, 1.2, 0), Vector(5, 0, 0)),
    Part.LineSegment(Vector(5, 0, 0), Vector(2.3, 3.4, 0)),
    Part.LineSegment(Vector(2.3, 3.4, 0), Vector(-0.5, 0, 0)),
    Part.LineSegment(Vector(-0.5, 0, 0), Vector(-1.9, 1.2, 0)),
    Part.LineSegment(Vector(-1.9, 1.2, 0), Vector(0.8, 4.4, 0)),
    Part.LineSegment(Vector(0.8, 4.4, 0), Vector(-0.9, 6.4, 0)),
    Part.LineSegment(Vector(-0.9, 6.4, 0), Vector(0.5, 7.5, 0)),
    Part.LineSegment(Vector(0.5, 7.5, 0), Vector(2.3, 5.4, 0)),
    Part.LineSegment(Vector(2.3, 5.4, 0), Vector(4, 7.5, 0)),
    Part.LineSegment(Vector(4, 7.5, 0), Vector(5.4, 6.4, 0)),
], False)
sketch8.addConstraint([
    Sketcher.Constraint("Coincident", 0, 2, 1, 1),
    Sketcher.Constraint("Coincident", 1, 2, 2, 1),
    Sketcher.Constraint("Coincident", 2, 2, 3, 1),
    Sketcher.Constraint("Coincident", 3, 2, 4, 1),
    Sketcher.Constraint("Coincident", 4, 2, 5, 1),
    Sketcher.Constraint("Coincident", 5, 2, 6, 1),
    Sketcher.Constraint("Coincident", 6, 2, 7, 1),
    Sketcher.Constraint("Coincident", 7, 2, 8, 1),
    Sketcher.Constraint("Coincident", 8, 2, 9, 1),
    Sketcher.Constraint("Coincident", 9, 2, 10, 1),
    Sketcher.Constraint("Coincident", 10, 2, 11, 1),
    Sketcher.Constraint("Coincident", 11, 2, 0, 1),
    Sketcher.Constraint("Perpendicular", 1, 2),
    Sketcher.Constraint("Perpendicular", 2, 3),
    Sketcher.Constraint("Parallel", 0, 4),
    Sketcher.Constraint("Perpendicular", 4, 5),
    Sketcher.Constraint("Perpendicular", 5, 6),
    Sketcher.Constraint("Parallel", 3, 7),
    Sketcher.Constraint("Perpendicular", 7, 8),
    Sketcher.Constraint("Perpendicular", 8, 9),
    Sketcher.Constraint("Parallel", 6, 10),
    Sketcher.Constraint("Perpendicular", 10, 11),
    Sketcher.Constraint("Horizontal", 2, 2, 4, 2),
    Sketcher.Constraint("Horizontal", 1, 2, 5, 2),
    Sketcher.Constraint("Horizontal", 0, 2, 6, 2),
    Sketcher.Constraint("Horizontal", 8, 2, 10, 2),
    Sketcher.Constraint("Horizontal", 7, 2, 11, 2),
    Sketcher.Constraint("Vertical", 3, 2, 9, 2),
    Sketcher.Constraint("Equal", 5, 8),
    Sketcher.Constraint("DistanceY", 3, 2, 0, 2, Q("1 mm")),
    Sketcher.Constraint("Distance", 2, Q("1.75 mm")),
    Sketcher.Constraint("DistanceX", 7, 2, -1, 1, Q("0.878002 mm")),
    Sketcher.Constraint("DistanceX", 4, 2, 1, 2, Q("6.874899 mm")),
    Sketcher.Constraint("Distance", 0, Q("2.651749 mm")),
    Sketcher.Constraint("Distance", 9, Q("2.799729 mm")),
    Sketcher.Constraint("DistanceY", -1, 1, 2, 2, Q("0.036069 mm")),
])
pocket4 = body.newObject("PartDesign::Pocket", "Pocket003")
pocket4.Profile = sketch8
pocket4.Length = 1.5
pocket4.Reversed = True

doc.recompute()
